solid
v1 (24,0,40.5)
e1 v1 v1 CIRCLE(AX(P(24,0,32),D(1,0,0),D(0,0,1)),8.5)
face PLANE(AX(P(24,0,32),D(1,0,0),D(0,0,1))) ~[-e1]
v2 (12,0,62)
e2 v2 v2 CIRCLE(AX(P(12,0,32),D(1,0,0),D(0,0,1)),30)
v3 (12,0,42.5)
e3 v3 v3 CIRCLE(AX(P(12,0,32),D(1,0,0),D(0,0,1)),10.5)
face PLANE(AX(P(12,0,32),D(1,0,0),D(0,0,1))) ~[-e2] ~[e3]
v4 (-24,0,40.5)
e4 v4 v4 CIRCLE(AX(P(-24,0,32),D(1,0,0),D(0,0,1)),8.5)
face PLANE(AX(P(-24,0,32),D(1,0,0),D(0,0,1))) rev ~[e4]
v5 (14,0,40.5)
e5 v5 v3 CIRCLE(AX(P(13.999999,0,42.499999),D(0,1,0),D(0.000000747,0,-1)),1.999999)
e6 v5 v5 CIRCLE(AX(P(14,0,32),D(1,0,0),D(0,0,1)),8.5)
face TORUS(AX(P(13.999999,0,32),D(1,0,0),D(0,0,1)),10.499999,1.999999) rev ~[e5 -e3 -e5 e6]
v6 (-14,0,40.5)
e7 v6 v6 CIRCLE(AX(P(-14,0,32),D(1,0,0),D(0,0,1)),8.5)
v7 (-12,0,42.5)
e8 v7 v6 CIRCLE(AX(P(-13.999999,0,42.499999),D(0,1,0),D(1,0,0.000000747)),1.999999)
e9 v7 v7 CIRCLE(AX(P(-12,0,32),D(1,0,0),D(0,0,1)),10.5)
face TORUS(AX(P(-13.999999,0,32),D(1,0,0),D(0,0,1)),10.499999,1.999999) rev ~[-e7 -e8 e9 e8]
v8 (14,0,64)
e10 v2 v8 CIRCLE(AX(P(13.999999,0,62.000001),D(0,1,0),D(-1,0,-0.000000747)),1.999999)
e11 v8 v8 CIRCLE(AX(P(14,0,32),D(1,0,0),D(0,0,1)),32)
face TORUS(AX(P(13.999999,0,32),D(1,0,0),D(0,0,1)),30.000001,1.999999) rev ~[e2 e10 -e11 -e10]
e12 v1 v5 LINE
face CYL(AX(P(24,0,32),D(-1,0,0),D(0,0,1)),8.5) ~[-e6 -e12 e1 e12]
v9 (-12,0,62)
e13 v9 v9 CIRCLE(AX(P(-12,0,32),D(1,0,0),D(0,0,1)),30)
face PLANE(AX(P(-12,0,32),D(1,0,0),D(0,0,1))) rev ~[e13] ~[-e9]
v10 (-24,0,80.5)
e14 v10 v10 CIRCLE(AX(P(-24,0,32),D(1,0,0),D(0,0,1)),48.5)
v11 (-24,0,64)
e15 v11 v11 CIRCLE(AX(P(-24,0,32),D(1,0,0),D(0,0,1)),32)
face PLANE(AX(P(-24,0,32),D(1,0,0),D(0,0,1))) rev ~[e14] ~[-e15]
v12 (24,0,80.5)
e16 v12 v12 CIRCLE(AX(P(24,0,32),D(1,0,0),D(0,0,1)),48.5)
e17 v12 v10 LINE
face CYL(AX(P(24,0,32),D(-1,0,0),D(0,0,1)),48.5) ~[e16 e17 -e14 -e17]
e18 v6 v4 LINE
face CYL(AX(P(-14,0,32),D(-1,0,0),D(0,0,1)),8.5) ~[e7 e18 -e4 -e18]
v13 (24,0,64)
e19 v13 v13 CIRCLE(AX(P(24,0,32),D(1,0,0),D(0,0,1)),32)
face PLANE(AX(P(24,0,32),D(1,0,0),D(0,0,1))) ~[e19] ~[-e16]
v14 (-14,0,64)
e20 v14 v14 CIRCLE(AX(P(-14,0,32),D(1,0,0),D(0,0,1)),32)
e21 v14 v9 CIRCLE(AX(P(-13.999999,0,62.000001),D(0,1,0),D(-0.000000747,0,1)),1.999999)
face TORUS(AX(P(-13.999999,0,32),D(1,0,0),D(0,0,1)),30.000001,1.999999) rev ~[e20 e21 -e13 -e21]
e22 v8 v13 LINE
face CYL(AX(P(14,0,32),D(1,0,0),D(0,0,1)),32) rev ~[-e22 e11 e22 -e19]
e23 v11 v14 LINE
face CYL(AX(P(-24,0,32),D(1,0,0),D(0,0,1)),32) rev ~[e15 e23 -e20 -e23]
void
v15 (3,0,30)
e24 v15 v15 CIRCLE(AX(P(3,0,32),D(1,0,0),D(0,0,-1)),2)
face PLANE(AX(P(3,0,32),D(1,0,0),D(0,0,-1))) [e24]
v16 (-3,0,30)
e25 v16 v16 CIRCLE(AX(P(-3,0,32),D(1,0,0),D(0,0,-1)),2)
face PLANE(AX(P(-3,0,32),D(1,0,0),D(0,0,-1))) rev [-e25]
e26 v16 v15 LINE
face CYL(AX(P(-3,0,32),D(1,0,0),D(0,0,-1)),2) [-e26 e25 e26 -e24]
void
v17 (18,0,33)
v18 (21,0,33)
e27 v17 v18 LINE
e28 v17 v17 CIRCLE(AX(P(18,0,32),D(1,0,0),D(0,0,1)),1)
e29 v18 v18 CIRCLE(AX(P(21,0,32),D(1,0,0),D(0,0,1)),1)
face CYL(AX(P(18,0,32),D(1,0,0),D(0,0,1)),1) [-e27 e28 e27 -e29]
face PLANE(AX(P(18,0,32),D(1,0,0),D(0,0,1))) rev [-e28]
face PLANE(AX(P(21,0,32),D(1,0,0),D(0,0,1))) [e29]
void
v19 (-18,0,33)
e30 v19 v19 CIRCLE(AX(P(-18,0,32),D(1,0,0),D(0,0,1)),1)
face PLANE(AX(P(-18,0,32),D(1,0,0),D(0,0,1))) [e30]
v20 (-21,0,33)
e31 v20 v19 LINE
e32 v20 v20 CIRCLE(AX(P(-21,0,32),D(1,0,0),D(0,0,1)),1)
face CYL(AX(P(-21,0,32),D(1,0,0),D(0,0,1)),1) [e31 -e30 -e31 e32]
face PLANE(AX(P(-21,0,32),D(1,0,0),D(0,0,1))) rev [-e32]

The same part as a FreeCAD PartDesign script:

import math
import FreeCAD as App
import Part
import Sketcher
from FreeCAD import Vector
Q = App.Units.Quantity

doc = App.newDocument("Part")
body = doc.addObject("PartDesign::Body", "Body")

# Sketch on XZ plane
sketch1 = body.newObject("Sketcher::SketchObject", "Sketch")
sketch1.AttachmentSupport = (doc.getObject("XZ_Plane"), [""])
sketch1.MapMode = "FlatFace"
sketch1.addGeometry([
    Part.LineSegment(Vector(-3, 32, 0), Vector(-3, 30, 0)),  # 0
    Part.LineSegment(Vector(-3, 30, 0), Vector(3, 30, 0)),  # 1
    Part.LineSegment(Vector(3, 30, 0), Vector(3, 32, 0)),  # 2
    Part.LineSegment(Vector(3, 32, 0), Vector(18, 32, 0)),  # 3
    Part.LineSegment(Vector(18, 32, 0), Vector(18, 33, 0)),  # 4
    Part.LineSegment(Vector(18, 33, 0), Vector(21, 33, 0)),  # 5
    Part.LineSegment(Vector(21, 33, 0), Vector(21, 32, 0)),  # 6
    Part.LineSegment(Vector(21, 32, 0), Vector(24, 32, 0)),  # 7
    Part.LineSegment(Vector(24, 32, 0), Vector(24, 40.5, 0)),  # 8
    Part.LineSegment(Vector(24, 40.5, 0), Vector(14, 40.5, 0)),  # 9
    Part.ArcOfCircle(Part.Circle(Vector(14, 42.5, 0), Vector(0, 0, 1), 2), math.radians(180), math.radians(270)),  # 10
    Part.LineSegment(Vector(12, 42.5, 0), Vector(12, 62, 0)),  # 11
    Part.ArcOfCircle(Part.Circle(Vector(14, 62, 0), Vector(0, 0, 1), 2), math.radians(90), math.radians(180)),  # 12
    Part.LineSegment(Vector(14, 64, 0), Vector(24, 64, 0)),  # 13
    Part.LineSegment(Vector(24, 64, 0), Vector(24, 80.5, 0)),  # 14
    Part.LineSegment(Vector(24, 80.5, 0), Vector(-24, 80.5, 0)),  # 15
    Part.LineSegment(Vector(-24, 80.5, 0), Vector(-24, 64, 0)),  # 16
    Part.LineSegment(Vector(-24, 64, 0), Vector(-14, 64, 0)),  # 17
    Part.ArcOfCircle(Part.Circle(Vector(-14, 62, 0), Vector(0, 0, 1), 2), math.radians(0), math.radians(90)),  # 18
    Part.LineSegment(Vector(-12, 62, 0), Vector(-12, 42.5, 0)),  # 19
    Part.ArcOfCircle(Part.Circle(Vector(-14, 42.5, 0), Vector(0, 0, 1), 2), math.radians(-90), math.radians(0)),  # 20
    Part.LineSegment(Vector(-14, 40.5, 0), Vector(-24, 40.5, 0)),  # 21
    Part.LineSegment(Vector(-24, 40.5, 0), Vector(-24, 32, 0)),  # 22
    Part.LineSegment(Vector(-24, 32, 0), Vector(-21, 32, 0)),  # 23
    Part.LineSegment(Vector(-21, 32, 0), Vector(-21, 33, 0)),  # 24
    Part.LineSegment(Vector(-21, 33, 0), Vector(-18, 33, 0)),  # 25
    Part.LineSegment(Vector(-18, 33, 0), Vector(-18, 32, 0)),  # 26
    Part.LineSegment(Vector(-18, 32, 0), Vector(-3, 32, 0)),  # 27
], False)
sketch1.addGeometry(Part.LineSegment(Vector(-24, 32, 0), Vector(24, 32, 0)), True)  # axis
sketch1.addConstraint([
    Sketcher.Constraint("Coincident", 0, 2, 1, 1),
    Sketcher.Constraint("Coincident", 1, 2, 2, 1),
    Sketcher.Constraint("Coincident", 2, 2, 3, 1),
    Sketcher.Constraint("Coincident", 3, 2, 4, 1),
    Sketcher.Constraint("Coincident", 4, 2, 5, 1),
    Sketcher.Constraint("Coincident", 5, 2, 6, 1),
    Sketcher.Constraint("Coincident", 6, 2, 7, 1),
    Sketcher.Constraint("Coincident", 7, 2, 8, 1),
    Sketcher.Constraint("Coincident", 8, 2, 9, 1),
    Sketcher.Constraint("Tangent", 9, 2, 10, 2),
    Sketcher.Constraint("Tangent", 10, 1, 11, 1),
    Sketcher.Constraint("Tangent", 11, 2, 12, 2),
    Sketcher.Constraint("Tangent", 12, 1, 13, 1),
    Sketcher.Constraint("Coincident", 13, 2, 14, 1),
    Sketcher.Constraint("Coincident", 14, 2, 15, 1),
    Sketcher.Constraint("Coincident", 15, 2, 16, 1),
    Sketcher.Constraint("Coincident", 16, 2, 17, 1),
    Sketcher.Constraint("Tangent", 17, 2, 18, 2),
    Sketcher.Constraint("Tangent", 18, 1, 19, 1),
    Sketcher.Constraint("Tangent", 19, 2, 20, 2),
    Sketcher.Constraint("Tangent", 20, 1, 21, 1),
    Sketcher.Constraint("Coincident", 21, 2, 22, 1),
    Sketcher.Constraint("Coincident", 22, 2, 23, 1),
    Sketcher.Constraint("Coincident", 23, 2, 24, 1),
    Sketcher.Constraint("Coincident", 24, 2, 25, 1),
    Sketcher.Constraint("Coincident", 25, 2, 26, 1),
    Sketcher.Constraint("Coincident", 26, 2, 27, 1),
    Sketcher.Constraint("Coincident", 27, 2, 0, 1),
    Sketcher.Constraint("Vertical", 0),
    Sketcher.Constraint("Horizontal", 1),
    Sketcher.Constraint("Vertical", 2),
    Sketcher.Constraint("Horizontal", 3),
    Sketcher.Constraint("Vertical", 4),
    Sketcher.Constraint("Horizontal", 5),
    Sketcher.Constraint("Vertical", 6),
    Sketcher.Constraint("Horizontal", 7),
    Sketcher.Constraint("Vertical", 8),
    Sketcher.Constraint("Horizontal", 9),
    Sketcher.Constraint("Vertical", 11),
    Sketcher.Constraint("Horizontal", 13),
    Sketcher.Constraint("Vertical", 14),
    Sketcher.Constraint("Horizontal", 15),
    Sketcher.Constraint("Vertical", 16),
    Sketcher.Constraint("Horizontal", 17),
    Sketcher.Constraint("Vertical", 19),
    Sketcher.Constraint("Horizontal", 21),
    Sketcher.Constraint("Vertical", 22),
    Sketcher.Constraint("Horizontal", 23),
    Sketcher.Constraint("Vertical", 24),
    Sketcher.Constraint("Horizontal", 25),
    Sketcher.Constraint("Vertical", 26),
    Sketcher.Constraint("Horizontal", 27),
    Sketcher.Constraint("Horizontal", 28),
    Sketcher.Constraint("Coincident", 28, 1, 22, 2),
    Sketcher.Constraint("Coincident", 28, 2, 7, 2),
    Sketcher.Constraint("Equal", 10, 12),
    Sketcher.Constraint("Equal", 12, 18),
    Sketcher.Constraint("Equal", 18, 20),
    Sketcher.Constraint("Symmetric", 12, 3, 18, 3, -2),
    Sketcher.Constraint("Symmetric", 8, 2, 21, 2, -2),
    Sketcher.Constraint("Symmetric", 5, 2, 24, 2, -2),
    Sketcher.Constraint("Symmetric", 3, 2, 26, 2, -2),
    Sketcher.Constraint("Horizontal", 3, 2, 6, 2),
    Sketcher.Constraint("Vertical", 8, 2, 13, 2),
    Sketcher.Constraint("Vertical", 16, 2, 21, 2),
    Sketcher.Constraint("Equal", 5, 7),
    Sketcher.Constraint("Equal", 3, 27),
    Sketcher.Constraint("Radius", 10, Q("1.999999 mm")),
    Sketcher.Constraint("DistanceX", 1, 1, 1, 2, Q("6 mm")),
    Sketcher.Constraint("DistanceX", 3, 1, 3, 2, Q("15 mm")),
    Sketcher.Constraint("DistanceX", 5, 1, 5, 2, Q("3 mm")),
    Sketcher.Constraint("DistanceX", 9, 2, 9, 1, Q("10 mm")),
    Sketcher.Constraint("DistanceY", 0, 2, 0, 1, Q("2 mm")),
    Sketcher.Constraint("DistanceY", 4, 1, 4, 2, Q("1 mm")),
    Sketcher.Constraint("DistanceY", 8, 1, 8, 2, Q("8.5 mm")),
    Sketcher.Constraint("DistanceY", 11, 1, 11, 2, Q("19.5 mm")),
    Sketcher.Constraint("DistanceY", 14, 1, 14, 2, Q("16.5 mm")),
    Sketcher.Constraint("DistanceY", -1, 1, 12, 3, Q("62.000001 mm")),
])
revolution = body.newObject("PartDesign::Revolution", "Revolution")
revolution.Profile = sketch1
revolution.ReferenceAxis = (sketch1, ["Axis0"])
revolution.Angle = 360

doc.recompute()
